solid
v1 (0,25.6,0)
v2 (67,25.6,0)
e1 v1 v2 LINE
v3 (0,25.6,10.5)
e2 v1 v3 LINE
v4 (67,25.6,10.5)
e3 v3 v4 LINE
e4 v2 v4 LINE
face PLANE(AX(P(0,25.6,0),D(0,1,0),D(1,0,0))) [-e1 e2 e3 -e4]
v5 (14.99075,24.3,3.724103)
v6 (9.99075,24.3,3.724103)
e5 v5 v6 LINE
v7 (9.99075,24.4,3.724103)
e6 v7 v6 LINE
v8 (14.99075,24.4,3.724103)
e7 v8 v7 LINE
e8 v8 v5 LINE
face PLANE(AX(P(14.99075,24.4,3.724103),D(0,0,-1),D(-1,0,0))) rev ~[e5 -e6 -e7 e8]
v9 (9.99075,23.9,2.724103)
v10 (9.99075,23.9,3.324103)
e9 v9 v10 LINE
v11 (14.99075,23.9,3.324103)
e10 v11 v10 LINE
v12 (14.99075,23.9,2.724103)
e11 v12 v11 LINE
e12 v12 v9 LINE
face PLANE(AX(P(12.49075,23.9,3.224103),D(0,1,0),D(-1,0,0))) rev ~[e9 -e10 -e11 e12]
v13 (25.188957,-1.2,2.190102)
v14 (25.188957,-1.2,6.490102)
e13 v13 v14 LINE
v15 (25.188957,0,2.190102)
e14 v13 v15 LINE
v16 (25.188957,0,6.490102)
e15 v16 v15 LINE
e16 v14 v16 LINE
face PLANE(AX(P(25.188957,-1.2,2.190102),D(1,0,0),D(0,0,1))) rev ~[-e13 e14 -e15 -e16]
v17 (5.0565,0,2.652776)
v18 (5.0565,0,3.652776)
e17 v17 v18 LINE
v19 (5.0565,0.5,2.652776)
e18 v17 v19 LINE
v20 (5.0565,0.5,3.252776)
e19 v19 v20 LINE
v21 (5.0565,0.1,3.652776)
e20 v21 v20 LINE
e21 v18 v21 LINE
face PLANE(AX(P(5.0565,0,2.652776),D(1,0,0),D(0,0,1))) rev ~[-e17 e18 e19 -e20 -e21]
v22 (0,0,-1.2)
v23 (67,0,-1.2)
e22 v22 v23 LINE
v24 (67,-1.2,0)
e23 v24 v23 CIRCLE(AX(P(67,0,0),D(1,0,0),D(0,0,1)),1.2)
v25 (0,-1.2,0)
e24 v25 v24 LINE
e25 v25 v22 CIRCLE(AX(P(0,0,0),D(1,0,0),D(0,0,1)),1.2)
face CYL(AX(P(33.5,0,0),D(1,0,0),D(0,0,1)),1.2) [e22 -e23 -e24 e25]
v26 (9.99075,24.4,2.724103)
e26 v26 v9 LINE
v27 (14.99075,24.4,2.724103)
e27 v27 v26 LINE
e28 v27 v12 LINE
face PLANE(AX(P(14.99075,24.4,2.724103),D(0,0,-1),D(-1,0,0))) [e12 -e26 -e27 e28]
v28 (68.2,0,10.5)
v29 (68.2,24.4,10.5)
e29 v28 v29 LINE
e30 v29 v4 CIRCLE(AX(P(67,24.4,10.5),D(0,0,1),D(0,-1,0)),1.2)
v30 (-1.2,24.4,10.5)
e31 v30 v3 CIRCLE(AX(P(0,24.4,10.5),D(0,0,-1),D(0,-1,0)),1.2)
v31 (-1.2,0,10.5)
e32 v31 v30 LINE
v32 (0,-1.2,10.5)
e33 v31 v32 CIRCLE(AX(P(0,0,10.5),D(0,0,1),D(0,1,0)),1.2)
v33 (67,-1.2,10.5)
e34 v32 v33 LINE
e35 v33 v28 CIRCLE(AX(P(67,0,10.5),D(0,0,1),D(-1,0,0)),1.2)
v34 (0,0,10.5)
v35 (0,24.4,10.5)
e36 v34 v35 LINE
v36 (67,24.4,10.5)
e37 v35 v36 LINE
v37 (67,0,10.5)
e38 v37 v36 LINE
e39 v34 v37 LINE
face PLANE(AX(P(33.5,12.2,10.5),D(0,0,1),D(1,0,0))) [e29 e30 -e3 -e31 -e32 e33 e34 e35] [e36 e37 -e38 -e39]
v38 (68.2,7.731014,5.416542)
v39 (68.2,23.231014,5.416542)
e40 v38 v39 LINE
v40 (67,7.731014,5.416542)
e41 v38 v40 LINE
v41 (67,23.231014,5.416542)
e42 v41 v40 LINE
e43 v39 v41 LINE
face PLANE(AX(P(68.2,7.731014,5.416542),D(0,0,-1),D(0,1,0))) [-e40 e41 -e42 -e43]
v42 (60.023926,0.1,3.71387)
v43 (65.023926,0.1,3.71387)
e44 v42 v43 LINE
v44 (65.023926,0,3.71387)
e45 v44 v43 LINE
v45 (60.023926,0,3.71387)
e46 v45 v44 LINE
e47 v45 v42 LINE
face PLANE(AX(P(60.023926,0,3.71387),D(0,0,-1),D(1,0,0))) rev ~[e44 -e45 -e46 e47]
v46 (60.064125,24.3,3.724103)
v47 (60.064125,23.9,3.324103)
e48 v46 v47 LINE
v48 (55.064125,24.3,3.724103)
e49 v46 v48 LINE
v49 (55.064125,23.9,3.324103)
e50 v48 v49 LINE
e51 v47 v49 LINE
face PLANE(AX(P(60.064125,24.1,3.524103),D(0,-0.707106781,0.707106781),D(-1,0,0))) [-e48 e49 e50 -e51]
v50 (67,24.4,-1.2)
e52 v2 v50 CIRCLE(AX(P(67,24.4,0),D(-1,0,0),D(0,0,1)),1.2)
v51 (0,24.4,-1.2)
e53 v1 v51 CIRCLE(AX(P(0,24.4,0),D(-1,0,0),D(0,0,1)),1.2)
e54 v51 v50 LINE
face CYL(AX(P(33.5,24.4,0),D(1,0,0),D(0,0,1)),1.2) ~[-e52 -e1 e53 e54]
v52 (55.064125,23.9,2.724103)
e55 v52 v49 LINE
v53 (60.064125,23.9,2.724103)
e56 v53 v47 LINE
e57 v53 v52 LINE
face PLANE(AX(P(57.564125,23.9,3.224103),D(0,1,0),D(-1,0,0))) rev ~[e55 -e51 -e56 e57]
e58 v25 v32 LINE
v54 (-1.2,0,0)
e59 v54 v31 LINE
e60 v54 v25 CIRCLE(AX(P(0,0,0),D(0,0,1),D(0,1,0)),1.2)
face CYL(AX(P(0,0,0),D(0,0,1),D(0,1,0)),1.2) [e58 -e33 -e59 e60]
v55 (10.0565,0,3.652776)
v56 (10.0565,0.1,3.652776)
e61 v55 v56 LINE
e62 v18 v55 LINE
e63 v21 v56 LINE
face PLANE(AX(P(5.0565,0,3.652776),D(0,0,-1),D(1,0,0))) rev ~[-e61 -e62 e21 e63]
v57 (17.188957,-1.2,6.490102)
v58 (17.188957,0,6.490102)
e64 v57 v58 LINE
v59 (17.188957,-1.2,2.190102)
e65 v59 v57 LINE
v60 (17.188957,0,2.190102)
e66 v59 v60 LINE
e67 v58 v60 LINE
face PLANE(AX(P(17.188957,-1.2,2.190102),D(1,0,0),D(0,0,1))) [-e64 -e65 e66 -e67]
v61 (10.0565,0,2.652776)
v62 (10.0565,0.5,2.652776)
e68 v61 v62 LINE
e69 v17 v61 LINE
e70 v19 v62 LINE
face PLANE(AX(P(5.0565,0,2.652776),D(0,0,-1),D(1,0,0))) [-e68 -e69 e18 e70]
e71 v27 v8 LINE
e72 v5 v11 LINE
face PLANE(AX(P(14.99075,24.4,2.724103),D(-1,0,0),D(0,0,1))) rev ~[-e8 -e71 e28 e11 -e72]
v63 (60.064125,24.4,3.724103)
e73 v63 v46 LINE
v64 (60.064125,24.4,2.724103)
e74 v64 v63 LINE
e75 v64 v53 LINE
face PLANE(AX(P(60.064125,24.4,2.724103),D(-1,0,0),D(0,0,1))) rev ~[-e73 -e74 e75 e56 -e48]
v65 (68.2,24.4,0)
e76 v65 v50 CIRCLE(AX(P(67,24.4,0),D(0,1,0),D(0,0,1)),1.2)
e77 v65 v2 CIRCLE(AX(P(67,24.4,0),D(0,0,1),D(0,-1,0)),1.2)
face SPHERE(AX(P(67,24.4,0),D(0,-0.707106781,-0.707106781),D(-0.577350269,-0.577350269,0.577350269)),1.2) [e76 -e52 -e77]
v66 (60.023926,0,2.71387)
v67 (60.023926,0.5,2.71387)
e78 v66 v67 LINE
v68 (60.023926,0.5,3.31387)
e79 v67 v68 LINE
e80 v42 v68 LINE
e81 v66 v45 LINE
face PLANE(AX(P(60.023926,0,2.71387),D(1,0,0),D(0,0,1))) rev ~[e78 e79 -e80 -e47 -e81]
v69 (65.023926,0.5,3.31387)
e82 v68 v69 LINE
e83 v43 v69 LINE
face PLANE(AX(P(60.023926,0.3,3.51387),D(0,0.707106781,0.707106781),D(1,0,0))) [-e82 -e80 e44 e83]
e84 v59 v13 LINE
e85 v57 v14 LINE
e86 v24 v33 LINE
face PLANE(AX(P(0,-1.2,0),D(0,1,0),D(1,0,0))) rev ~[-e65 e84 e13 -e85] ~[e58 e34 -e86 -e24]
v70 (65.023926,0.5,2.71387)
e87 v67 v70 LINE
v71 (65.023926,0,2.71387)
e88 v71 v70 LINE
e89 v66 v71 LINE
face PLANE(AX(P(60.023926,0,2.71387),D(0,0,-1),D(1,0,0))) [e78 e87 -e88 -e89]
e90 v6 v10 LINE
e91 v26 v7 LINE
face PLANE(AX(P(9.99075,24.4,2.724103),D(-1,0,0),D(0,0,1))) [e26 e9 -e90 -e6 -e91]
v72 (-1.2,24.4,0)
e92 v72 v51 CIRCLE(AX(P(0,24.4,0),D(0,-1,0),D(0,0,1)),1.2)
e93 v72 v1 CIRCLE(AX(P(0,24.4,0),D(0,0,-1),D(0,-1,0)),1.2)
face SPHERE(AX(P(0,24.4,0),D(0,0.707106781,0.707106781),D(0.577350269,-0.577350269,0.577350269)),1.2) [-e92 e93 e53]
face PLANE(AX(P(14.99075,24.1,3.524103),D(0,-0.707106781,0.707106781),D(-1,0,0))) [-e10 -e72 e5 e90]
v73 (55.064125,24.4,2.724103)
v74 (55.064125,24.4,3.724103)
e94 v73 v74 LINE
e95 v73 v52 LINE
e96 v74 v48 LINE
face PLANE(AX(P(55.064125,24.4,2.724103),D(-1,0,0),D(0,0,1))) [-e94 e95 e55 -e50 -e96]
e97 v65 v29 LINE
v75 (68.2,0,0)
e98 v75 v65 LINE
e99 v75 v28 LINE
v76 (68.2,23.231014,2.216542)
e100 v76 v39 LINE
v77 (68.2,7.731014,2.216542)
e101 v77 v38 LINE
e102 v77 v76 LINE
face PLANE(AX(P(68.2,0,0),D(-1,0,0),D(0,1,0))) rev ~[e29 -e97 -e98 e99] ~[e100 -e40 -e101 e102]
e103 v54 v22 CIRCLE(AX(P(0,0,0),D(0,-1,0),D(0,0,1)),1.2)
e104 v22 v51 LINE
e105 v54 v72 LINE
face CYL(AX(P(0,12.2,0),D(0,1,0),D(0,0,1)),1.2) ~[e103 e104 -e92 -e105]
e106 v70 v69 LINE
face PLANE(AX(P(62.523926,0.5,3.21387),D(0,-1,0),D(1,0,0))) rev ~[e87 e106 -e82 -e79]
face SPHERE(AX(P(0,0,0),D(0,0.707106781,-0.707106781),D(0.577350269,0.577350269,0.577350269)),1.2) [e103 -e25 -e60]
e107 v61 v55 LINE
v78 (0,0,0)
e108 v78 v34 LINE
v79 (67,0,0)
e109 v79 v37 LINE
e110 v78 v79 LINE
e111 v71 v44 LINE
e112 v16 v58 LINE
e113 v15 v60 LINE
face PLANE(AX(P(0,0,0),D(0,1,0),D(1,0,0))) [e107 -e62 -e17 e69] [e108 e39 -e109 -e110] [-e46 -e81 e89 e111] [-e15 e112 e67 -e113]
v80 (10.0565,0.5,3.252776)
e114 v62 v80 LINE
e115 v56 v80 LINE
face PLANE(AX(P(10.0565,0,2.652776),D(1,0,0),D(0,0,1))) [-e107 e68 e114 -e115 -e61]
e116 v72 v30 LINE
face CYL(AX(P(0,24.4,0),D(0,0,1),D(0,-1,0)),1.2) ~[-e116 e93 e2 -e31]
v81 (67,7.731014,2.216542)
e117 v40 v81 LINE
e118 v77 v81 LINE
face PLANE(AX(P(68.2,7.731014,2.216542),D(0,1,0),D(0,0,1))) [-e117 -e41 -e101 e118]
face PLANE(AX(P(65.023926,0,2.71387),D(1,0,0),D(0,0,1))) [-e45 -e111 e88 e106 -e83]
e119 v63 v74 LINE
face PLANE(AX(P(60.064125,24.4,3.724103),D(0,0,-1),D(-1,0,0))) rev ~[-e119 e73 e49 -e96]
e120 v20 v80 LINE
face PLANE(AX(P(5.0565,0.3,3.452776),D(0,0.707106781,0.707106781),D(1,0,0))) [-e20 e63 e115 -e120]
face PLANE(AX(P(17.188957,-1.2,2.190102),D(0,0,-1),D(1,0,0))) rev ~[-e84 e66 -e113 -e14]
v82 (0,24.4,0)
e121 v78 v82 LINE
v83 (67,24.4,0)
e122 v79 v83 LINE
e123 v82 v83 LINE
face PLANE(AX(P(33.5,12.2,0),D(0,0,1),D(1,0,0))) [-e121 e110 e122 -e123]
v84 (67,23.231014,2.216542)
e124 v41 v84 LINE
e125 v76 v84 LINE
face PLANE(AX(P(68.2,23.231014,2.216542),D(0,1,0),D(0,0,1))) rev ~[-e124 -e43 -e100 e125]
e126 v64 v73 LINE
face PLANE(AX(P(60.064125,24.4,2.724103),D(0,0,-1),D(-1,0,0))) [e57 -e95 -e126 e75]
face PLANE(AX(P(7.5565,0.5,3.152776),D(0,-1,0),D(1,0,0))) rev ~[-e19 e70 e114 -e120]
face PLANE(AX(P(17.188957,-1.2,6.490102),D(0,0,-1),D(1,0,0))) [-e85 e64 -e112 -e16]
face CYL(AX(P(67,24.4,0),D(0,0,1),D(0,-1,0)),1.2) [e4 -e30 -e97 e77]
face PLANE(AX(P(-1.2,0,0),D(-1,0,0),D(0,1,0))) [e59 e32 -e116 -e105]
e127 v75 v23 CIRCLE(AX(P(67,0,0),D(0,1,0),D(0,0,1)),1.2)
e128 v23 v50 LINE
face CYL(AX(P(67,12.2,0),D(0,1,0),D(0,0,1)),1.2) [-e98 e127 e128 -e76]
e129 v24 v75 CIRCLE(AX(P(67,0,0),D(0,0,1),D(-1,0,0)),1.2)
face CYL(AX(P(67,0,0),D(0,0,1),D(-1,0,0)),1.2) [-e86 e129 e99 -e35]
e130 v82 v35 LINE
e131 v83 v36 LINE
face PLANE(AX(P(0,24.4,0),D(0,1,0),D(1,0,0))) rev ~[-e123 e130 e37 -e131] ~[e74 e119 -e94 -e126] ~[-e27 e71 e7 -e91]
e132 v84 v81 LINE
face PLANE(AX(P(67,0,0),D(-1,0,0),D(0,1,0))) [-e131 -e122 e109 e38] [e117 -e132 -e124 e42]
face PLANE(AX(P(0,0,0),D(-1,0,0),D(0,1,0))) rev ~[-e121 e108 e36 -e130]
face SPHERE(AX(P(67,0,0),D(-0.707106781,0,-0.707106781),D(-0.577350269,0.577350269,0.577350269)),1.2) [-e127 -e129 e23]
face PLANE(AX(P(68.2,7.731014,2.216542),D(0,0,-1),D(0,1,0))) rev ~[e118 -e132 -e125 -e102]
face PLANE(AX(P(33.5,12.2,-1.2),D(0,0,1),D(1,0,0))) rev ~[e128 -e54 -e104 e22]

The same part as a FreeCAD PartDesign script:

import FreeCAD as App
import Part
import Sketcher
from FreeCAD import Vector


def edges_at(feature, points):
    """Names of the edges that pass closest to the given points."""
    edges = feature.Shape.Edges
    near = lambda p: min(range(len(edges)), key=lambda i: edges[i].distToShape(Part.Vertex(*p))[0])
    return sorted({f"Edge{near(p) + 1}" for p in points})


def faces_at(feature, points):
    """Names of the faces that lie closest to the given points."""
    faces = feature.Shape.Faces
    near = lambda p: min(range(len(faces)), key=lambda i: faces[i].distToShape(Part.Vertex(*p))[0])
    return sorted({f"Face{near(p) + 1}" for p in points})


def add_polygon(sketch, points):
    """Adds a closed chain of lines whose ends are joined by coincident constraints."""
    first, n = sketch.GeometryCount, len(points)
    for a, b in zip(points, points[1:] + points[:1]):
        sketch.addGeometry(Part.LineSegment(App.Vector(*a, 0), App.Vector(*b, 0)), False)
    for i in range(n):
        sketch.addConstraint(Sketcher.Constraint("Coincident", first + i, 2, first + (i + 1) % n, 1))

doc = App.newDocument("Part")
body = doc.addObject("PartDesign::Body", "Body")

# Sketch on XY plane
sketch1 = doc.addObject("Sketcher::SketchObject", "Sketch")
body.addObject(sketch1)
sketch1.AttachmentSupport = (doc.XY_Plane, [""])
sketch1.MapMode = "FlatFace"
add_polygon(sketch1, [(0, 24.4), (0, 0), (67, 0), (67, 24.4)])  # lines 0-3
sketch1.addConstraint([
    Sketcher.Constraint("Vertical", 0),
    Sketcher.Constraint("Horizontal", 1),
    Sketcher.Constraint("Vertical", 2),
    Sketcher.Constraint("Horizontal", 3),
    Sketcher.Constraint("Coincident", 0, 2, -1, 1),
    Sketcher.Constraint("DistanceX", 1, 1, 1, 2, 67.0),
    Sketcher.Constraint("DistanceY", 0, 2, 0, 1, 24.4),
])
pad1 = doc.addObject("PartDesign::Pad", "Pad")
body.addObject(pad1)
pad1.Profile = sketch1
pad1.Length = 10.5
doc.recompute()

thickness = doc.addObject("PartDesign::Thickness", "Thickness")
body.addObject(thickness)
thickness.Base = (pad1, faces_at(pad1, [(33.5, 12.2, 10.5)]))
thickness.Value = 1.2
thickness.Reversed = False
thickness.Join = "Arc"

# Sketch on XZ plane
sketch2 = doc.addObject("Sketcher::SketchObject", "Sketch001")
body.addObject(sketch2)
sketch2.AttachmentSupport = (doc.XZ_Plane, [""])
sketch2.MapMode = "FlatFace"
sketch2.AttachmentOffset = App.Placement(Vector(0, 0, 1.2), App.Rotation())
add_polygon(sketch2, [(17.188957, 6.490102), (17.188957, 2.190102), (25.188957, 2.190102), (25.188957, 6.490102)])  # lines 0-3
sketch2.addConstraint([
    Sketcher.Constraint("Vertical", 0),
    Sketcher.Constraint("Horizontal", 1),
    Sketcher.Constraint("Vertical", 2),
    Sketcher.Constraint("Horizontal", 3),
    Sketcher.Constraint("DistanceX", 1, 1, 1, 2, 8.0),
    Sketcher.Constraint("DistanceY", 0, 2, 0, 1, 4.3),
    Sketcher.Constraint("DistanceY", -1, 1, 0, 2, 2.190102),
    Sketcher.Constraint("DistanceX", -1, 1, 0, 2, 17.188957),
])
pocket1 = doc.addObject("PartDesign::Pocket", "Pocket")
body.addObject(pocket1)
pocket1.Profile = sketch2
pocket1.Length = 5

# Sketch on YZ plane
sketch3 = doc.addObject("Sketcher::SketchObject", "Sketch002")
body.addObject(sketch3)
sketch3.AttachmentSupport = (doc.YZ_Plane, [""])
sketch3.MapMode = "FlatFace"
sketch3.AttachmentOffset = App.Placement(Vector(0, 0, 68.2), App.Rotation())
add_polygon(sketch3, [(7.731014, 5.416542), (7.731014, 2.216542), (23.231014, 2.216542), (23.231014, 5.416542)])  # lines 0-3
sketch3.addConstraint([
    Sketcher.Constraint("Vertical", 0),
    Sketcher.Constraint("Horizontal", 1),
    Sketcher.Constraint("Vertical", 2),
    Sketcher.Constraint("Horizontal", 3),
    Sketcher.Constraint("DistanceX", 1, 1, 1, 2, 15.5),
    Sketcher.Constraint("DistanceY", 0, 2, 0, 1, 3.2),
    Sketcher.Constraint("DistanceY", -1, 1, 0, 2, 2.216542),
    Sketcher.Constraint("DistanceX", -1, 1, 0, 2, 7.731014),
])
pocket2 = doc.addObject("PartDesign::Pocket", "Pocket001")
body.addObject(pocket2)
pocket2.Profile = sketch3
pocket2.Length = 5

# Sketch on XZ plane
sketch4 = doc.addObject("Sketcher::SketchObject", "Sketch003")
body.addObject(sketch4)
sketch4.AttachmentSupport = (doc.XZ_Plane, [""])
sketch4.MapMode = "FlatFace"
add_polygon(sketch4, [(5.0565, 3.652776), (5.0565, 2.652776), (10.0565, 2.652776), (10.0565, 3.652776)])  # lines 0-3
add_polygon(sketch4, [(60.023926, 3.71387), (60.023926, 2.71387), (65.023926, 2.71387), (65.023926, 3.71387)])  # lines 4-7
sketch4.addConstraint([
    Sketcher.Constraint("Vertical", 0),
    Sketcher.Constraint("Horizontal", 1),
    Sketcher.Constraint("Vertical", 2),
    Sketcher.Constraint("Horizontal", 3),
    Sketcher.Constraint("Vertical", 4),
    Sketcher.Constraint("Horizontal", 5),
    Sketcher.Constraint("Vertical", 6),
    Sketcher.Constraint("Horizontal", 7),
    Sketcher.Constraint("Equal", 3, 5),
    Sketcher.Constraint("Equal", 2, 4),
    Sketcher.Constraint("DistanceX", 1, 1, 1, 2, 5.0),
    Sketcher.Constraint("DistanceY", 0, 2, 0, 1, 1.0),
    Sketcher.Constraint("DistanceX", -1, 1, 0, 2, 5.0565),
    Sketcher.Constraint("DistanceY", -1, 1, 4, 2, 2.71387),
    Sketcher.Constraint("DistanceY", -1, 1, 0, 2, 2.652776),
    Sketcher.Constraint("DistanceX", -1, 1, 4, 2, 60.023926),
])
pad2 = doc.addObject("PartDesign::Pad", "Pad001")
body.addObject(pad2)
pad2.Profile = sketch4
pad2.Length = 0.5
pad2.Reversed = True

# Sketch on XZ plane
sketch5 = doc.addObject("Sketcher::SketchObject", "Sketch004")
body.addObject(sketch5)
sketch5.AttachmentSupport = (doc.XZ_Plane, [""])
sketch5.MapMode = "FlatFace"
sketch5.AttachmentOffset = App.Placement(Vector(0, 0, -24.4), App.Rotation())
add_polygon(sketch5, [(60.064125, 3.724103), (60.064125, 2.724103), (55.064125, 2.724103), (55.064125, 3.724103)])  # lines 0-3
add_polygon(sketch5, [(14.99075, 3.724103), (14.99075, 2.724103), (9.99075, 2.724103), (9.99075, 3.724103)])  # lines 4-7
sketch5.addConstraint([
    Sketcher.Constraint("Vertical", 0),
    Sketcher.Constraint("Horizontal", 1),
    Sketcher.Constraint("Vertical", 2),
    Sketcher.Constraint("Horizontal", 3),
    Sketcher.Constraint("Vertical", 4),
    Sketcher.Constraint("Horizontal", 5),
    Sketcher.Constraint("Vertical", 6),
    Sketcher.Constraint("Horizontal", 7),
    Sketcher.Constraint("Horizontal", 1, 2, 4, 2),
    Sketcher.Constraint("Horizontal", 3, 2, 6, 2),
    Sketcher.Constraint("Equal", 3, 5),
    Sketcher.Constraint("DistanceX", 1, 2, 1, 1, 5.0),
    Sketcher.Constraint("DistanceY", 0, 2, 0, 1, 1.0),
    Sketcher.Constraint("DistanceX", -1, 1, 4, 2, 14.99075),
    Sketcher.Constraint("DistanceX", -1, 1, 0, 2, 60.064125),
    Sketcher.Constraint("DistanceY", -1, 1, 0, 2, 2.724103),
])
pad3 = doc.addObject("PartDesign::Pad", "Pad002")
body.addObject(pad3)
pad3.Profile = sketch5
pad3.Length = 0.5
doc.recompute()

chamfer = doc.addObject("PartDesign::Chamfer", "Chamfer")
body.addObject(chamfer)
chamfer.Base = (pad3, edges_at(pad3, [(12.491, 23.9, 3.724)]))
chamfer.Size = 0.4
doc.recompute()

chamfer2 = doc.addObject("PartDesign::Chamfer", "Chamfer001")
body.addObject(chamfer2)
chamfer2.Base = (chamfer, edges_at(chamfer, [(57.564, 23.9, 3.724)]))
chamfer2.Size = 0.4
doc.recompute()

chamfer3 = doc.addObject("PartDesign::Chamfer", "Chamfer002")
body.addObject(chamfer3)
chamfer3.Base = (chamfer2, edges_at(chamfer2, [(62.524, 0.5, 3.714)]))
chamfer3.Size = 0.4
doc.recompute()

chamfer4 = doc.addObject("PartDesign::Chamfer", "Chamfer003")
body.addObject(chamfer4)
chamfer4.Base = (chamfer3, edges_at(chamfer3, [(7.556, 0.5, 3.653)]))
chamfer4.Size = 0.4

doc.recompute()
